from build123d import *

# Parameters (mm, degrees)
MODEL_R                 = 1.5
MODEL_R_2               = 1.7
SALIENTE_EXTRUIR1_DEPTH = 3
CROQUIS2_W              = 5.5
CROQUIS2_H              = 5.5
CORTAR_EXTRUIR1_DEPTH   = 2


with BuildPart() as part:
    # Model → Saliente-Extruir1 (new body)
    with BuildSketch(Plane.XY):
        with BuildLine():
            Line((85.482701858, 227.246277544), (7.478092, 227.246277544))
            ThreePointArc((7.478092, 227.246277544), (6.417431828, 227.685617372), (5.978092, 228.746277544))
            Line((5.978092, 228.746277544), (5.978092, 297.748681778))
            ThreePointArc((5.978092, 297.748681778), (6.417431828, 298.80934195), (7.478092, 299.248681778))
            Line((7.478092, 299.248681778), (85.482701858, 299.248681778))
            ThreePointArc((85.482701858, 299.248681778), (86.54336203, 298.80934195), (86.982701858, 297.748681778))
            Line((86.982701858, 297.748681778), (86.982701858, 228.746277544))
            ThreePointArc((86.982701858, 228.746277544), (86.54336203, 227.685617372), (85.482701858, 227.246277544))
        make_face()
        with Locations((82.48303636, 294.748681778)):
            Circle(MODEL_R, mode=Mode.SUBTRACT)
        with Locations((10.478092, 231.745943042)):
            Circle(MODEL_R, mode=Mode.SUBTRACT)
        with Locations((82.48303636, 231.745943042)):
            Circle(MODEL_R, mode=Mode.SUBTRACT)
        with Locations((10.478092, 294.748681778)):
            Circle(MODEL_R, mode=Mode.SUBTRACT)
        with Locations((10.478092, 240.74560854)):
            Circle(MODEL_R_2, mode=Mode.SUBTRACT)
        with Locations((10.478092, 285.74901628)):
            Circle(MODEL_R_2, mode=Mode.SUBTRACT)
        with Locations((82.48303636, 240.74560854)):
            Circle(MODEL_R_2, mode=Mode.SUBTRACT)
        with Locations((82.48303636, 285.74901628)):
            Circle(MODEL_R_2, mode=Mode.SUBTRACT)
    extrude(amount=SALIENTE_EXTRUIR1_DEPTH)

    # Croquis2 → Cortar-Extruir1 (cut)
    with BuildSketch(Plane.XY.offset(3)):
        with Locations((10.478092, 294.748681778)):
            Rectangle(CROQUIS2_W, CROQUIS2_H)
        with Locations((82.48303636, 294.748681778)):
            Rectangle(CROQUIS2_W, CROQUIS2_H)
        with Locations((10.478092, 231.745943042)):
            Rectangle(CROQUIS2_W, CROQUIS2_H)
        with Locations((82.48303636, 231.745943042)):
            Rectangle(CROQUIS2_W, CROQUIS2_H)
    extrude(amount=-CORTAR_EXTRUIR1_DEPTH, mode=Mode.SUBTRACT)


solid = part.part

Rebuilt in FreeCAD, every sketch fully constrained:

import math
import FreeCAD as App
import Part
import Sketcher
from FreeCAD import Vector
Q = App.Units.Quantity


def add_polygon(sketch, points):
    """Adds a closed chain of lines whose ends are joined by coincident constraints."""
    first, n = sketch.GeometryCount, len(points)
    for a, b in zip(points, points[1:] + points[:1]):
        sketch.addGeometry(Part.LineSegment(App.Vector(*a, 0), App.Vector(*b, 0)), False)
    for i in range(n):
        sketch.addConstraint(Sketcher.Constraint("Coincident", first + i, 2, first + (i + 1) % n, 1))

doc = App.newDocument("Part")
body = doc.addObject("PartDesign::Body", "Body")

sketch1 = body.newObject("Sketcher::SketchObject", "Sketch")
sketch1.AttachmentSupport = (doc.getObject("XY_Plane"), [""])
sketch1.MapMode = "FlatFace"
sketch1.addGeometry(Part.LineSegment(Vector(7.478092, 227.246278, 0), Vector(85.482702, 227.246278, 0)), False)
sketch1.addGeometry(Part.ArcOfCircle(Part.Circle(Vector(85.482702, 228.746278, 0), Vector(0, 0, 1), 1.5), math.radians(-90), math.radians(0)), False)
sketch1.addGeometry(Part.LineSegment(Vector(86.982702, 228.746278, 0), Vector(86.982702, 297.748682, 0)), False)
sketch1.addGeometry(Part.ArcOfCircle(Part.Circle(Vector(85.482702, 297.748682, 0), Vector(0, 0, 1), 1.5), math.radians(0), math.radians(90)), False)
sketch1.addGeometry(Part.LineSegment(Vector(85.482702, 299.248682, 0), Vector(7.478092, 299.248682, 0)), False)
sketch1.addGeometry(Part.ArcOfCircle(Part.Circle(Vector(7.478092, 297.748682, 0), Vector(0, 0, 1), 1.5), math.radians(90), math.radians(180)), False)
sketch1.addGeometry(Part.LineSegment(Vector(5.978092, 297.748682, 0), Vector(5.978092, 228.746278, 0)), False)
sketch1.addGeometry(Part.ArcOfCircle(Part.Circle(Vector(7.478092, 228.746278, 0), Vector(0, 0, 1), 1.5), math.radians(180), math.radians(270)), False)
sketch1.addGeometry(Part.Circle(Vector(82.483036, 231.745943, 0), Vector(0, 0, 1), 1.5), False)
sketch1.addGeometry(Part.Circle(Vector(82.483036, 240.745609, 0), Vector(0, 0, 1), 1.7), False)
sketch1.addGeometry(Part.Circle(Vector(10.478092, 231.745943, 0), Vector(0, 0, 1), 1.5), False)
sketch1.addGeometry(Part.Circle(Vector(10.478092, 240.745609, 0), Vector(0, 0, 1), 1.7), False)
sketch1.addGeometry(Part.Circle(Vector(82.483036, 285.749016, 0), Vector(0, 0, 1), 1.7), False)
sketch1.addGeometry(Part.Circle(Vector(82.483036, 294.748682, 0), Vector(0, 0, 1), 1.5), False)
sketch1.addGeometry(Part.Circle(Vector(10.478092, 285.749016, 0), Vector(0, 0, 1), 1.7), False)
sketch1.addGeometry(Part.Circle(Vector(10.478092, 294.748682, 0), Vector(0, 0, 1), 1.5), False)
sketch1.addConstraint(Sketcher.Constraint("Tangent", 0, 2, 1, 1))
sketch1.addConstraint(Sketcher.Constraint("Tangent", 1, 2, 2, 1))
sketch1.addConstraint(Sketcher.Constraint("Tangent", 2, 2, 3, 1))
sketch1.addConstraint(Sketcher.Constraint("Tangent", 3, 2, 4, 1))
sketch1.addConstraint(Sketcher.Constraint("Tangent", 4, 2, 5, 1))
sketch1.addConstraint(Sketcher.Constraint("Tangent", 5, 2, 6, 1))
sketch1.addConstraint(Sketcher.Constraint("Tangent", 6, 2, 7, 1))
sketch1.addConstraint(Sketcher.Constraint("Tangent", 7, 2, 0, 1))
sketch1.addConstraint(Sketcher.Constraint("Horizontal", 0))
sketch1.addConstraint(Sketcher.Constraint("Vertical", 2))
sketch1.addConstraint(Sketcher.Constraint("Horizontal", 4))
sketch1.addConstraint(Sketcher.Constraint("Vertical", 6))
sketch1.addConstraint(Sketcher.Constraint("Equal", 1, 3))
sketch1.addConstraint(Sketcher.Constraint("Equal", 3, 5))
sketch1.addConstraint(Sketcher.Constraint("Equal", 5, 7))
sketch1.addConstraint(Sketcher.Constraint("Equal", 7, 8))
sketch1.addConstraint(Sketcher.Constraint("Equal", 8, 10))
sketch1.addConstraint(Sketcher.Constraint("Equal", 9, 11))
sketch1.addConstraint(Sketcher.Constraint("Equal", 11, 12))
sketch1.addConstraint(Sketcher.Constraint("Equal", 10, 13))
sketch1.addConstraint(Sketcher.Constraint("Equal", 12, 14))
sketch1.addConstraint(Sketcher.Constraint("Equal", 13, 15))
sketch1.addConstraint(Sketcher.Constraint("Horizontal", 8, 3, 10, 3))
sketch1.addConstraint(Sketcher.Constraint("Horizontal", 9, 3, 11, 3))
sketch1.addConstraint(Sketcher.Constraint("Horizontal", 12, 3, 14, 3))
sketch1.addConstraint(Sketcher.Constraint("Horizontal", 13, 3, 15, 3))
sketch1.addConstraint(Sketcher.Constraint("Vertical", 8, 3, 9, 3))
sketch1.addConstraint(Sketcher.Constraint("Vertical", 10, 3, 11, 3))
sketch1.addConstraint(Sketcher.Constraint("Vertical", 9, 3, 12, 3))
sketch1.addConstraint(Sketcher.Constraint("Vertical", 12, 3, 13, 3))
sketch1.addConstraint(Sketcher.Constraint("Vertical", 11, 3, 14, 3))
sketch1.addConstraint(Sketcher.Constraint("Vertical", 14, 3, 15, 3))
sketch1.addConstraint(Sketcher.Constraint("Diameter", 8, Q("3 mm")))
sketch1.addConstraint(Sketcher.Constraint("Diameter", 9, Q("3.4 mm")))
sketch1.addConstraint(Sketcher.Constraint("DistanceX", 7, 3, 10, 3, Q("3 mm")))
sketch1.addConstraint(Sketcher.Constraint("DistanceY", 13, 3, 3, 3, Q("3 mm")))
sketch1.addConstraint(Sketcher.Constraint("DistanceX", 0, 1, 0, 2, Q("78.00461 mm")))
sketch1.addConstraint(Sketcher.Constraint("DistanceX", -1, 1, 1, 3, Q("85.482702 mm")))
sketch1.addConstraint(Sketcher.Constraint("DistanceY", 2, 1, 2, 2, Q("69.002404 mm")))
sketch1.addConstraint(Sketcher.Constraint("DistanceY", -1, 1, 3, 3, Q("297.748682 mm")))
sketch1.addConstraint(Sketcher.Constraint("DistanceY", -1, 1, 9, 3, Q("240.745609 mm")))
sketch1.addConstraint(Sketcher.Constraint("DistanceY", 8, 3, 3, 3, Q("66.002739 mm")))
sketch1.addConstraint(Sketcher.Constraint("DistanceY", 1, 3, 12, 3, Q("57.002739 mm")))
sketch1.addConstraint(Sketcher.Constraint("DistanceX", -1, 1, 8, 3, Q("82.483036 mm")))
pad1 = body.newObject("PartDesign::Pad", "Pad")
pad1.Profile = sketch1
pad1.Length = 3

sketch2 = body.newObject("Sketcher::SketchObject", "Sketch001")
sketch2.AttachmentSupport = (doc.getObject("XY_Plane"), [""])
sketch2.MapMode = "FlatFace"
sketch2.AttachmentOffset = App.Placement(Vector(0, 0, 3), App.Rotation())
add_polygon(sketch2, [(7.728092, 297.498682), (7.728092, 291.998682), (13.228092, 291.998682), (13.228092, 297.498682)])
add_polygon(sketch2, [(79.733036, 297.498682), (79.733036, 291.998682), (85.233036, 291.998682), (85.233036, 297.498682)])
add_polygon(sketch2, [(7.728092, 234.495943), (7.728092, 228.995943), (13.228092, 228.995943), (13.228092, 234.495943)])
add_polygon(sketch2, [(79.733036, 234.495943), (79.733036, 228.995943), (85.233036, 228.995943), (85.233036, 234.495943)])
sketch2.addConstraint(Sketcher.Constraint("Vertical", 0))
sketch2.addConstraint(Sketcher.Constraint("Horizontal", 1))
sketch2.addConstraint(Sketcher.Constraint("Vertical", 2))
sketch2.addConstraint(Sketcher.Constraint("Horizontal", 3))
sketch2.addConstraint(Sketcher.Constraint("Vertical", 4))
sketch2.addConstraint(Sketcher.Constraint("Horizontal", 5))
sketch2.addConstraint(Sketcher.Constraint("Vertical", 6))
sketch2.addConstraint(Sketcher.Constraint("Horizontal", 7))
sketch2.addConstraint(Sketcher.Constraint("Vertical", 8))
sketch2.addConstraint(Sketcher.Constraint("Horizontal", 9))
sketch2.addConstraint(Sketcher.Constraint("Vertical", 10))
sketch2.addConstraint(Sketcher.Constraint("Horizontal", 11))
sketch2.addConstraint(Sketcher.Constraint("Vertical", 12))
sketch2.addConstraint(Sketcher.Constraint("Horizontal", 13))
sketch2.addConstraint(Sketcher.Constraint("Vertical", 14))
sketch2.addConstraint(Sketcher.Constraint("Horizontal", 15))
sketch2.addConstraint(Sketcher.Constraint("Horizontal", 1, 2, 4, 2))
sketch2.addConstraint(Sketcher.Constraint("Horizontal", 3, 2, 6, 2))
sketch2.addConstraint(Sketcher.Constraint("Horizontal", 9, 2, 12, 2))
sketch2.addConstraint(Sketcher.Constraint("Horizontal", 11, 2, 14, 2))
sketch2.addConstraint(Sketcher.Constraint("Vertical", 3, 2, 8, 2))
sketch2.addConstraint(Sketcher.Constraint("Vertical", 2, 2, 9, 2))
sketch2.addConstraint(Sketcher.Constraint("Vertical", 7, 2, 12, 2))
sketch2.addConstraint(Sketcher.Constraint("Vertical", 6, 2, 13, 2))
sketch2.addConstraint(Sketcher.Constraint("Equal", 3, 5))
sketch2.addConstraint(Sketcher.Constraint("Equal", 15, 0))
sketch2.addConstraint(Sketcher.Constraint("Equal", 6, 8))
sketch2.addConstraint(Sketcher.Constraint("DistanceX", 1, 1, 1, 2, Q("5.5 mm")))
sketch2.addConstraint(Sketcher.Constraint("DistanceY", -1, 1, 0, 2, Q("291.998682 mm")))
sketch2.addConstraint(Sketcher.Constraint("DistanceY", 8, 2, 0, 2, Q("63.002739 mm")))
sketch2.addConstraint(Sketcher.Constraint("DistanceX", -1, 1, 0, 2, Q("7.728092 mm")))
sketch2.addConstraint(Sketcher.Constraint("DistanceX", -1, 1, 4, 2, Q("79.733036 mm")))
pocket1 = body.newObject("PartDesign::Pocket", "Pocket")
pocket1.Profile = sketch2
pocket1.Length = 2

doc.recompute()
